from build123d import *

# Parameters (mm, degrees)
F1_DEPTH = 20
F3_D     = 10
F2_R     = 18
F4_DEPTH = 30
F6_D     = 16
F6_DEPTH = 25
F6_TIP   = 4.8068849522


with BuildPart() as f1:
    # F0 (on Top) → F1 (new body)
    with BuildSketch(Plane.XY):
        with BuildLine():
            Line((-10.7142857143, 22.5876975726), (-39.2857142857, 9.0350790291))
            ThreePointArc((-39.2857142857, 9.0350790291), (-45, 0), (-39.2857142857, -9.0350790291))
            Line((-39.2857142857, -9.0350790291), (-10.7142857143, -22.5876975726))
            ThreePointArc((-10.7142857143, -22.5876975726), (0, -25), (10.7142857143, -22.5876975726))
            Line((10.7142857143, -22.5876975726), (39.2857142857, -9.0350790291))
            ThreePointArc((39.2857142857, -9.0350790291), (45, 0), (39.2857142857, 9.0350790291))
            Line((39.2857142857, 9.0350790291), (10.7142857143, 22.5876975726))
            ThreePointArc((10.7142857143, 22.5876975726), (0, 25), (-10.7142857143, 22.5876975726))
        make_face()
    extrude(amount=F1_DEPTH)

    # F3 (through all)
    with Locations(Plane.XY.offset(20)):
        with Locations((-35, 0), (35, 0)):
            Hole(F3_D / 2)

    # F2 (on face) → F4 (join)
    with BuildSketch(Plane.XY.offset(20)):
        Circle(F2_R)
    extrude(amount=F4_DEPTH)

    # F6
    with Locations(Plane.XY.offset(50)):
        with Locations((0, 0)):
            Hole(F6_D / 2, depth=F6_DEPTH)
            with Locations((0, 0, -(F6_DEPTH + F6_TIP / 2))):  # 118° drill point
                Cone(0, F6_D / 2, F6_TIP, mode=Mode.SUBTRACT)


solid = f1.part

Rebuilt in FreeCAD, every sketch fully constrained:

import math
import FreeCAD as App
import Part
import Sketcher
from FreeCAD import Vector

doc = App.newDocument("Part")
params = doc.addObject("Spreadsheet::Sheet", "Params")
for row, (alias, value) in enumerate([
    ("sketch1_radius", "10 mm"),
    ("sketch1_radius2", "25 mm"),
    ("pad1_length", "20 mm"),
    ("sketch2_diameter", "10 mm"),
    ("hole_diameter", "10 mm"),
    ("sketch3_diameter", "36 mm"),
    ("pad2_length", "30 mm"),
    ("sketch4_diameter", "16 mm"),
    ("hole2_diameter", "16 mm"),
    ("hole2_depth", "25 mm"),
], start=1):
    params.set(f"A{row}", alias)
    params.set(f"B{row}", "=" + value)
    params.setAlias(f"B{row}", alias)

body = doc.addObject("PartDesign::Body", "Body")

sketch1 = body.newObject("Sketcher::SketchObject", "Sketch")
sketch1.AttachmentSupport = (doc.getObject("XY_Plane"), [""])
sketch1.MapMode = "FlatFace"
sketch1.addGeometry(Part.LineSegment(Vector(-11, 23, 0), Vector(-39, 9, 0)), False)
sketch1.addGeometry(Part.ArcOfCircle(Part.Circle(Vector(-35, 0, 0), Vector(0, 0, 1), 10), math.radians(115), math.radians(245)), False)
sketch1.addGeometry(Part.LineSegment(Vector(-39, -9, 0), Vector(-11, -23, 0)), False)
sketch1.addGeometry(Part.ArcOfCircle(Part.Circle(Vector(0, 0, 0), Vector(0, 0, 1), 25), math.radians(-115), math.radians(-65)), False)
sketch1.addGeometry(Part.LineSegment(Vector(11, -23, 0), Vector(39, -9, 0)), False)
sketch1.addGeometry(Part.ArcOfCircle(Part.Circle(Vector(35, 0, 0), Vector(0, 0, 1), 10), math.radians(-65), math.radians(65)), False)
sketch1.addGeometry(Part.LineSegment(Vector(39, 9, 0), Vector(11, 23, 0)), False)
sketch1.addGeometry(Part.ArcOfCircle(Part.Circle(Vector(0, 0, 0), Vector(0, 0, 1), 25), math.radians(65), math.radians(115)), False)
sketch1.addConstraint(Sketcher.Constraint("Tangent", 0, 2, 1, 1))
sketch1.addConstraint(Sketcher.Constraint("Tangent", 1, 2, 2, 1))
sketch1.addConstraint(Sketcher.Constraint("Tangent", 2, 2, 3, 1))
sketch1.addConstraint(Sketcher.Constraint("Tangent", 3, 2, 4, 1))
sketch1.addConstraint(Sketcher.Constraint("Tangent", 4, 2, 5, 1))
sketch1.addConstraint(Sketcher.Constraint("Tangent", 5, 2, 6, 1))
sketch1.addConstraint(Sketcher.Constraint("Tangent", 6, 2, 7, 1))
sketch1.addConstraint(Sketcher.Constraint("Tangent", 7, 2, 0, 1))
sketch1.addConstraint(Sketcher.Constraint("Coincident", 3, 3, -1, 1))
sketch1.addConstraint(Sketcher.Constraint("Coincident", 7, 3, -1, 1))
sketch1.addConstraint(Sketcher.Constraint("Equal", 1, 5))
sketch1.addConstraint(Sketcher.Constraint("Equal", 3, 7))
sketch1.addConstraint(Sketcher.Constraint("Symmetric", 1, 3, 5, 3, -1, 1))
sketch1.addConstraint(Sketcher.Constraint("PointOnObject", 1, 3, -1))
sketch1.addConstraint(Sketcher.Constraint("Radius", 1, 10.0))
sketch1.addConstraint(Sketcher.Constraint("Radius", 3, 25.0))
sketch1.addConstraint(Sketcher.Constraint("DistanceX", 1, 3, -1, 1, 35.0))
sketch1.setExpression("Constraints[14]", "Params.sketch1_radius")
sketch1.setExpression("Constraints[15]", "Params.sketch1_radius2")
pad1 = body.newObject("PartDesign::Pad", "Pad")
pad1.Profile = sketch1
pad1.setExpression("Length", "Params.pad1_length")

sketch2 = body.newObject("Sketcher::SketchObject", "Sketch001")
sketch2.AttachmentSupport = (doc.getObject("XY_Plane"), [""])
sketch2.MapMode = "FlatFace"
sketch2.AttachmentOffset = App.Placement(Vector(0, 0, 20), App.Rotation())
sketch2.addGeometry(Part.Circle(Vector(-35, 0, 0), Vector(0, 0, 1), 5), False)
sketch2.addGeometry(Part.Circle(Vector(35, 0, 0), Vector(0, 0, 1), 5), False)
sketch2.addConstraint(Sketcher.Constraint("Equal", 0, 1))
sketch2.addConstraint(Sketcher.Constraint("Symmetric", 0, 3, 1, 3, -1, 1))
sketch2.addConstraint(Sketcher.Constraint("PointOnObject", 0, 3, -1))
sketch2.addConstraint(Sketcher.Constraint("Diameter", 0, 10.0))
sketch2.addConstraint(Sketcher.Constraint("DistanceX", 0, 3, -1, 1, 35.0))
sketch2.setExpression("Constraints[3]", "Params.sketch2_diameter")
doc.recompute()
hole = body.newObject("PartDesign::Hole", "Hole")
hole.Profile = sketch2
hole.ThreadType = "None"
hole.setExpression("Diameter", "Params.hole_diameter")
hole.DepthType = "ThroughAll"

sketch3 = body.newObject("Sketcher::SketchObject", "Sketch002")
sketch3.AttachmentSupport = (doc.getObject("XY_Plane"), [""])
sketch3.MapMode = "FlatFace"
sketch3.AttachmentOffset = App.Placement(Vector(0, 0, 20), App.Rotation())
sketch3.addGeometry(Part.Circle(Vector(0, 0, 0), Vector(0, 0, 1), 18), False)
sketch3.addConstraint(Sketcher.Constraint("Coincident", 0, 3, -1, 1))
sketch3.addConstraint(Sketcher.Constraint("Diameter", 0, 36.0))
sketch3.setExpression("Constraints[1]", "Params.sketch3_diameter")
pad2 = body.newObject("PartDesign::Pad", "Pad001")
pad2.Profile = sketch3
pad2.setExpression("Length", "Params.pad2_length")

sketch4 = body.newObject("Sketcher::SketchObject", "Sketch003")
sketch4.AttachmentSupport = (doc.getObject("XY_Plane"), [""])
sketch4.MapMode = "FlatFace"
sketch4.AttachmentOffset = App.Placement(Vector(0, 0, 50), App.Rotation())
sketch4.addGeometry(Part.Circle(Vector(0, 0, 0), Vector(0, 0, 1), 8), False)
sketch4.addConstraint(Sketcher.Constraint("Coincident", 0, 3, -1, 1))
sketch4.addConstraint(Sketcher.Constraint("Diameter", 0, 16.0))
sketch4.setExpression("Constraints[1]", "Params.sketch4_diameter")
doc.recompute()
hole2 = body.newObject("PartDesign::Hole", "Hole001")
hole2.Profile = sketch4
hole2.ThreadType = "None"
hole2.setExpression("Diameter", "Params.hole2_diameter")
hole2.DepthType = "Dimension"
hole2.setExpression("Depth", "Params.hole2_depth")
hole2.DrillPoint = "Angled"
hole2.DrillPointAngle = 118

doc.recompute()
